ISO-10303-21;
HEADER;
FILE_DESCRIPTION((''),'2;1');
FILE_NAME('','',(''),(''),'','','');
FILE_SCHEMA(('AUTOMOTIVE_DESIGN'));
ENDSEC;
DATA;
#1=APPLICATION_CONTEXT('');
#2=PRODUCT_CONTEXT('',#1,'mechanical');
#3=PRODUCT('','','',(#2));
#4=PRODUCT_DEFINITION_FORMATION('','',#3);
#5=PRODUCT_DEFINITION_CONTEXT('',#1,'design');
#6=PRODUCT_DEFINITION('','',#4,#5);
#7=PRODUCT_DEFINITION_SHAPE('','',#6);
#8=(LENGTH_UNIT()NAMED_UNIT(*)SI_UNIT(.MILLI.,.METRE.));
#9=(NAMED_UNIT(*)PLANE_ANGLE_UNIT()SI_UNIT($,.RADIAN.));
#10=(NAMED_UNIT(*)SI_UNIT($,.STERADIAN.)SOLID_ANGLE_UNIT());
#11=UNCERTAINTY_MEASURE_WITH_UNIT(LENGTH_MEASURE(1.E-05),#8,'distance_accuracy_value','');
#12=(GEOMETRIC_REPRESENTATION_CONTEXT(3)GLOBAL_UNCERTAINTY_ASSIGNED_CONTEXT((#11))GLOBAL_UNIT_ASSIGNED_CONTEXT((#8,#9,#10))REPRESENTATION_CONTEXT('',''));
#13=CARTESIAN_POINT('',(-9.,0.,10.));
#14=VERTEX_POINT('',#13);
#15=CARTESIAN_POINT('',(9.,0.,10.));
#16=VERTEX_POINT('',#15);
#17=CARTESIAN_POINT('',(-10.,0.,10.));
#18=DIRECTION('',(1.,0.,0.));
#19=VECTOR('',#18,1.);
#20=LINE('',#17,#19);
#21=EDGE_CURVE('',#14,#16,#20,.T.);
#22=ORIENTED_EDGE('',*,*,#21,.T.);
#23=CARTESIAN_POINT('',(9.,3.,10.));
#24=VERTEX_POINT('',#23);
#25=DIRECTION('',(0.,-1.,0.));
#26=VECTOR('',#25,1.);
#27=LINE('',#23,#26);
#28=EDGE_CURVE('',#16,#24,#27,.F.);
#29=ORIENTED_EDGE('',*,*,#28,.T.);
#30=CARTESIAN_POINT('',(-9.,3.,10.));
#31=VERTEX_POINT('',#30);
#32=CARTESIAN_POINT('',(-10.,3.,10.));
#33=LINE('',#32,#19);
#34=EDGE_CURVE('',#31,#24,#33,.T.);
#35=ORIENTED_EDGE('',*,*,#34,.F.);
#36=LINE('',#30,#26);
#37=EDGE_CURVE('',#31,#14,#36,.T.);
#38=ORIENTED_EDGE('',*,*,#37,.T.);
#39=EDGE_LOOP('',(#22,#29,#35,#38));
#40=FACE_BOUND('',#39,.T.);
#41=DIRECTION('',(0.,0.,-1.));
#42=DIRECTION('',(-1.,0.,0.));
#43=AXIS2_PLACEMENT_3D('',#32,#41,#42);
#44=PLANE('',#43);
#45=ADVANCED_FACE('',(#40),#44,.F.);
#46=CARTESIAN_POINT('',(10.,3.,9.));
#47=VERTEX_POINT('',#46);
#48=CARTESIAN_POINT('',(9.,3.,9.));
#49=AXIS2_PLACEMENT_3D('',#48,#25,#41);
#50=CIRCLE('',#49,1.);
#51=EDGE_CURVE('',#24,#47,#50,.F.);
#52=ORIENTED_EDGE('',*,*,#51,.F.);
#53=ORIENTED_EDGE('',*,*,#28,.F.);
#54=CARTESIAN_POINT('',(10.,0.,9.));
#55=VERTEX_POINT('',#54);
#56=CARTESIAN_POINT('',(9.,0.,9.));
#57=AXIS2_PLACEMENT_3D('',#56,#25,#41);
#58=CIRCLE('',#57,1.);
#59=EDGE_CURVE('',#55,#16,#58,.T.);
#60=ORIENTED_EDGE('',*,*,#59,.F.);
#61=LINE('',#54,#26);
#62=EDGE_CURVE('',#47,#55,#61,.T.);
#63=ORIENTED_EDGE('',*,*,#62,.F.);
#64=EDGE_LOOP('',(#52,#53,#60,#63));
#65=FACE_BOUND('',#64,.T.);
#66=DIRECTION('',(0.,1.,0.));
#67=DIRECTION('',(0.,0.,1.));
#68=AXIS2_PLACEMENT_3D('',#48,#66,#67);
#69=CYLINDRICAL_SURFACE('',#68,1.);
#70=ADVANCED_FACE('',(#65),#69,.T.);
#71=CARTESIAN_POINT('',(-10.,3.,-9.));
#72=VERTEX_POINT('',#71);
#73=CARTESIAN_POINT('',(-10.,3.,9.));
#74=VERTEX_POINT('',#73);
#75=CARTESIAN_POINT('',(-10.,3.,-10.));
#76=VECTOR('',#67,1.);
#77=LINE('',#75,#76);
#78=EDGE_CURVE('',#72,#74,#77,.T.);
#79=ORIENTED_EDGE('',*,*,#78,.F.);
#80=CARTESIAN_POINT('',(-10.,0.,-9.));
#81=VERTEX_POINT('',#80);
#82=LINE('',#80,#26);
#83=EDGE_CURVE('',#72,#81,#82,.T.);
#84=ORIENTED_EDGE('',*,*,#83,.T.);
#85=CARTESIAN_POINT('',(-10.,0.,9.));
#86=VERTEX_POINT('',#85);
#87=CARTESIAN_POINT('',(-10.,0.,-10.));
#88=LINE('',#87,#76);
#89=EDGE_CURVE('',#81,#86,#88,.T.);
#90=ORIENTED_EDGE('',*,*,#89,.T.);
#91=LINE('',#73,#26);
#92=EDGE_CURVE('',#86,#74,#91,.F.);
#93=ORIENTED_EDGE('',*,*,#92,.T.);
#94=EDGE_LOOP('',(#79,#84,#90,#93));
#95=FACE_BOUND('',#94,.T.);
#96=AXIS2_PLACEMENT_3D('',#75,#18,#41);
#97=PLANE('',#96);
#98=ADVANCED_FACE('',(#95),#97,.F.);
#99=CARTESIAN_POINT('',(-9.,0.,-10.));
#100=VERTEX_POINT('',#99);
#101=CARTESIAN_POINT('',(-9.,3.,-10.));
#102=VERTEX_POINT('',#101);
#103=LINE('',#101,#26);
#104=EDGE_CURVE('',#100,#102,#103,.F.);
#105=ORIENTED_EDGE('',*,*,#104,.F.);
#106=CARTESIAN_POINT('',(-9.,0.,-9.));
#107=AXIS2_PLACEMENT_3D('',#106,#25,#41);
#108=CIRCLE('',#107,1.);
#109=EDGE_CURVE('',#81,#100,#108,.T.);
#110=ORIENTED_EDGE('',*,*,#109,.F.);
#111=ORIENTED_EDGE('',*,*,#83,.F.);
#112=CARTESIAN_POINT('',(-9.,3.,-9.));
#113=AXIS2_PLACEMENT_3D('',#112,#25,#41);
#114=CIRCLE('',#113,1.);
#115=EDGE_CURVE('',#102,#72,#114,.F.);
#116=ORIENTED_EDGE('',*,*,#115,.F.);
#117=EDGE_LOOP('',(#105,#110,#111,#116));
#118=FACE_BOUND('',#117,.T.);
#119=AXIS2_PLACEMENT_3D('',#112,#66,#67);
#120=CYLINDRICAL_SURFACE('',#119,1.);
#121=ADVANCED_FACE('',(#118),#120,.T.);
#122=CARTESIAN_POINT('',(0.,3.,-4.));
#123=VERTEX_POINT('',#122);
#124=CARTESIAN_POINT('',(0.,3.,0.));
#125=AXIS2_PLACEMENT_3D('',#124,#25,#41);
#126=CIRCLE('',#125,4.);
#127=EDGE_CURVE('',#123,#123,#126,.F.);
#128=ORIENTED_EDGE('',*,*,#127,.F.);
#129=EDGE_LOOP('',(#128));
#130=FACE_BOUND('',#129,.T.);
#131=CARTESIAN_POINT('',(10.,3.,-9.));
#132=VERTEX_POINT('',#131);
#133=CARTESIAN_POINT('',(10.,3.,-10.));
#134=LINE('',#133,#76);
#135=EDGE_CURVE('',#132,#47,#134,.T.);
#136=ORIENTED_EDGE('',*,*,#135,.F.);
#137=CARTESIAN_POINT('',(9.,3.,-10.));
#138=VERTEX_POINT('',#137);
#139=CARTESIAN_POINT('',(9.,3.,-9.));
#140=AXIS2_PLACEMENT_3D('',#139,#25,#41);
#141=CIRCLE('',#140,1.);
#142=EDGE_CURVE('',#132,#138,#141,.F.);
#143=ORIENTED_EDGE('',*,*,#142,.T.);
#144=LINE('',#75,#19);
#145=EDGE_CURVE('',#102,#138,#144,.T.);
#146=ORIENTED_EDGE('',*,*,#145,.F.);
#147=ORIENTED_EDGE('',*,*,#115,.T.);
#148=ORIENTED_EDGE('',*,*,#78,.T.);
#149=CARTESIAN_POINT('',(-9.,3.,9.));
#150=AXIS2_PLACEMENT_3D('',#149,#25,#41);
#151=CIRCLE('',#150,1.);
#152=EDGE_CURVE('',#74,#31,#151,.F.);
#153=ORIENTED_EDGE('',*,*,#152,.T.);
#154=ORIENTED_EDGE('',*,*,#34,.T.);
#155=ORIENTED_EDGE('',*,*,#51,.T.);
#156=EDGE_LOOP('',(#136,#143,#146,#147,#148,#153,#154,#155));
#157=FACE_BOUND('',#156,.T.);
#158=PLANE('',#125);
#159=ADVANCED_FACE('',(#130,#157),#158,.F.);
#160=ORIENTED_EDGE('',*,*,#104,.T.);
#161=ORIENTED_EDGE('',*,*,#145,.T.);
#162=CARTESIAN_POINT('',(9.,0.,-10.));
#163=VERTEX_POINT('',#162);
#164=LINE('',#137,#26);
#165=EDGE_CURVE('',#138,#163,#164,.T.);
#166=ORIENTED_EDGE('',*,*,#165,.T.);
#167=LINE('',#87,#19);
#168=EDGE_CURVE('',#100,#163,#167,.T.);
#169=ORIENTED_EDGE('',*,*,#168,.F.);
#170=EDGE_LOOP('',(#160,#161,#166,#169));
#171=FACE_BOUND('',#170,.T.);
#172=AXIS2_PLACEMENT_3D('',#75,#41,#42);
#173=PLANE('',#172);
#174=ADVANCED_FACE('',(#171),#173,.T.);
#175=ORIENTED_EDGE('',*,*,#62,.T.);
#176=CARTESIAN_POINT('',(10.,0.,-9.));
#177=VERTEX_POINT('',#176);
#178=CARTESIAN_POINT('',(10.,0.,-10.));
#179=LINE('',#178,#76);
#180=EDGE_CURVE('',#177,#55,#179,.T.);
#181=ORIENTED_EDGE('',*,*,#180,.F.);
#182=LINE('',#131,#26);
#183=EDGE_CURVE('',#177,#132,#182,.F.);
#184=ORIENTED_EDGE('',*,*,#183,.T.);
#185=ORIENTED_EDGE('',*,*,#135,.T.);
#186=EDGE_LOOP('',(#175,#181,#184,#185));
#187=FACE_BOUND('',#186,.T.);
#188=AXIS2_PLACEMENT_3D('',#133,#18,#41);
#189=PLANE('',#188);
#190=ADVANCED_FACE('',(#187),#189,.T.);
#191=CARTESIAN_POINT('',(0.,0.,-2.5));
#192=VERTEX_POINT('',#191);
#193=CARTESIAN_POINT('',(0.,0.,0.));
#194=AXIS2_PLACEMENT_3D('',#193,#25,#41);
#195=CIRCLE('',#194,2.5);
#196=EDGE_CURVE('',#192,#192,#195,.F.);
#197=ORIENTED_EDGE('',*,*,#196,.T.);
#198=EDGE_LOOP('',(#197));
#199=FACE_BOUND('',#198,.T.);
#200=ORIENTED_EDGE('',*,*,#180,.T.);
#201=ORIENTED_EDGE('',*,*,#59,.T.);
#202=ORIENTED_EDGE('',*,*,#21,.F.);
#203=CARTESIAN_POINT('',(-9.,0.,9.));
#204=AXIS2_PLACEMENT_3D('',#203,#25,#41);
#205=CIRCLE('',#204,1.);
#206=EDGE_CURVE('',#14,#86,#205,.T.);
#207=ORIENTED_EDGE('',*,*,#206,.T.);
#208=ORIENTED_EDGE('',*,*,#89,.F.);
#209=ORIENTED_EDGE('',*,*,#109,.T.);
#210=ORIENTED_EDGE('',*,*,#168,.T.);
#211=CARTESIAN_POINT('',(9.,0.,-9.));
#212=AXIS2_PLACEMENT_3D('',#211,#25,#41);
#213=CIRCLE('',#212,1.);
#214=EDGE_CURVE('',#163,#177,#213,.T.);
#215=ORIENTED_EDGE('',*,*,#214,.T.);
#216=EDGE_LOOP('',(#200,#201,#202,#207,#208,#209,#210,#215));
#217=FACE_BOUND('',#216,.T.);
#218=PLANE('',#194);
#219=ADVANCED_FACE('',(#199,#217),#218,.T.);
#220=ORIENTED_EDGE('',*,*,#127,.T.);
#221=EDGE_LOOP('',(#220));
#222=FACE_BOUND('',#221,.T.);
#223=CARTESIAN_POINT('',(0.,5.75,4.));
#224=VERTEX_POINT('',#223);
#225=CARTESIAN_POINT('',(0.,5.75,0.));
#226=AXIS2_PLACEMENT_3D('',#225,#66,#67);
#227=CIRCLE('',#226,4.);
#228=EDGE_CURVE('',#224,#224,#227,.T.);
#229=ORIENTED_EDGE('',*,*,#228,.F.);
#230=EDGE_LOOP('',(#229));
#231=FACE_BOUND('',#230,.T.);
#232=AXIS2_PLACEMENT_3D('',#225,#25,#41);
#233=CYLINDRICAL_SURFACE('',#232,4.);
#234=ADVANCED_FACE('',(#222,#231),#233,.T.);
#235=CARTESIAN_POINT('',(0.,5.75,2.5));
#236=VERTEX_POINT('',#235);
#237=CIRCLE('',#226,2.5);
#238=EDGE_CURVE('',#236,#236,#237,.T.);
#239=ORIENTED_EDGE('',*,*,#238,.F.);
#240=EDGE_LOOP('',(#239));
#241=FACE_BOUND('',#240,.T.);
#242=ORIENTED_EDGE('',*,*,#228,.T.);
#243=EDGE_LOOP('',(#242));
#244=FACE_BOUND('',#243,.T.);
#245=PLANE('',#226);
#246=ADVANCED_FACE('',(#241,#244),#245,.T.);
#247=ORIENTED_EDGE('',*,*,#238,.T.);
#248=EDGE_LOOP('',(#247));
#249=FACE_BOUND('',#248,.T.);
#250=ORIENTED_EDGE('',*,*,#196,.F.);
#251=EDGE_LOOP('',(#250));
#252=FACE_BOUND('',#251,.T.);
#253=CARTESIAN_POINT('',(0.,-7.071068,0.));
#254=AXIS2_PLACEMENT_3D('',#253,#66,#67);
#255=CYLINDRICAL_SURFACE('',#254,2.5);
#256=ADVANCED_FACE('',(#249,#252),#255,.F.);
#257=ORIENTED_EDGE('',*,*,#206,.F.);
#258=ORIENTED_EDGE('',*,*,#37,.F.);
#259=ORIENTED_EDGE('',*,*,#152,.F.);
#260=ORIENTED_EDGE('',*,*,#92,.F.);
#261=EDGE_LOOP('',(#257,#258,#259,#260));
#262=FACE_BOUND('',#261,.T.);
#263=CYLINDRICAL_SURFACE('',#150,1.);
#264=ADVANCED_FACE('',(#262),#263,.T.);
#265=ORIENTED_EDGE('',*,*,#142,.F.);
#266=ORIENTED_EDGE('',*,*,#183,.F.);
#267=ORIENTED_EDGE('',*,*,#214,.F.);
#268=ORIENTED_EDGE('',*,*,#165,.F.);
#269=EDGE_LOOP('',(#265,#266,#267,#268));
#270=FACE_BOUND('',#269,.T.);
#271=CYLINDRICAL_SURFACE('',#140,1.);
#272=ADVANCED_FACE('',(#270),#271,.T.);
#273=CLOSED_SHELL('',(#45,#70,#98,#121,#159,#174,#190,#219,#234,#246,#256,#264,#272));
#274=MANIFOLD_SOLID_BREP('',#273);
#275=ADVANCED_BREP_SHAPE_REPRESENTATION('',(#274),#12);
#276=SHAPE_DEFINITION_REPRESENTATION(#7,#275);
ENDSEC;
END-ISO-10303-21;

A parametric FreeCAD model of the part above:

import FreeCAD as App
import Part
import Sketcher
from FreeCAD import Vector
Q = App.Units.Quantity


def edges_at(feature, points):
    """Names of the edges that pass closest to the given points."""
    edges = feature.Shape.Edges
    near = lambda p: min(range(len(edges)), key=lambda i: edges[i].distToShape(Part.Vertex(*p))[0])
    return sorted({f"Edge{near(p) + 1}" for p in points})

doc = App.newDocument("Part")
body = doc.addObject("PartDesign::Body", "Body")

sketch1 = doc.addObject("Sketcher::SketchObject", "Sketch")
body.addObject(sketch1)
sketch1.AttachmentSupport = (doc.XZ_Plane, [""])
sketch1.MapMode = "FlatFace"
sketch1.addGeometry(Part.LineSegment(Vector(-10, -10, 0), Vector(-10, 10, 0)), False)
sketch1.addGeometry(Part.LineSegment(Vector(-10, 10, 0), Vector(10, 10, 0)), False)
sketch1.addGeometry(Part.LineSegment(Vector(10, 10, 0), Vector(10, -10, 0)), False)
sketch1.addGeometry(Part.LineSegment(Vector(10, -10, 0), Vector(-10, -10, 0)), False)
sketch1.addConstraint(Sketcher.Constraint("Coincident", 0, 2, 1, 1))
sketch1.addConstraint(Sketcher.Constraint("Coincident", 1, 2, 2, 1))
sketch1.addConstraint(Sketcher.Constraint("Coincident", 2, 2, 3, 1))
sketch1.addConstraint(Sketcher.Constraint("Coincident", 3, 2, 0, 1))
sketch1.addConstraint(Sketcher.Constraint("Vertical", 0))
sketch1.addConstraint(Sketcher.Constraint("Horizontal", 1))
sketch1.addConstraint(Sketcher.Constraint("Vertical", 2))
sketch1.addConstraint(Sketcher.Constraint("Horizontal", 3))
sketch1.addConstraint(Sketcher.Constraint("Symmetric", 0, 2, 2, 2, -1, 1))
sketch1.addConstraint(Sketcher.Constraint("Equal", 3, 0))
sketch1.addConstraint(Sketcher.Constraint("DistanceX", 1, 1, 1, 2, Q("20 mm")))
pad1 = doc.addObject("PartDesign::Pad", "Pad")
body.addObject(pad1)
pad1.Profile = sketch1
pad1.Length = 3
pad1.Reversed = True
doc.recompute()

fillet = doc.addObject("PartDesign::Fillet", "Fillet")
body.addObject(fillet)
fillet.Base = (pad1, edges_at(pad1, [
    (-10, 1.5, -10),
    (-10, 1.5, 10),
    (10, 1.5, 10),
    (10, 1.5, -10),
]))
fillet.Radius = 1

sketch2 = doc.addObject("Sketcher::SketchObject", "Sketch001")
body.addObject(sketch2)
sketch2.AttachmentSupport = (doc.XZ_Plane, [""])
sketch2.MapMode = "FlatFace"
sketch2.addGeometry(Part.Circle(Vector(0, 0, 0), Vector(0, 0, 1), 4), False)
sketch2.addConstraint(Sketcher.Constraint("Coincident", 0, 3, -1, 1))
sketch2.addConstraint(Sketcher.Constraint("Diameter", 0, Q("8 mm")))
pad2 = doc.addObject("PartDesign::Pad", "Pad001")
body.addObject(pad2)
pad2.Profile = sketch2
pad2.Length = 5.75
pad2.Reversed = True

sketch3 = doc.addObject("Sketcher::SketchObject", "Sketch002")
body.addObject(sketch3)
sketch3.AttachmentSupport = (doc.XZ_Plane, [""])
sketch3.MapMode = "FlatFace"
sketch3.AttachmentOffset = App.Placement(Vector(0, 0, -5.75), App.Rotation())
sketch3.addGeometry(Part.Circle(Vector(0, 0, 0), Vector(0, 0, 1), 2.5), False)
sketch3.addConstraint(Sketcher.Constraint("Coincident", 0, 3, -1, 1))
sketch3.addConstraint(Sketcher.Constraint("Diameter", 0, Q("5 mm")))
pocket1 = doc.addObject("PartDesign::Pocket", "Pocket")
body.addObject(pocket1)
pocket1.Profile = sketch3
pocket1.Length = 5.75
pocket1.Reversed = True

doc.recompute()
